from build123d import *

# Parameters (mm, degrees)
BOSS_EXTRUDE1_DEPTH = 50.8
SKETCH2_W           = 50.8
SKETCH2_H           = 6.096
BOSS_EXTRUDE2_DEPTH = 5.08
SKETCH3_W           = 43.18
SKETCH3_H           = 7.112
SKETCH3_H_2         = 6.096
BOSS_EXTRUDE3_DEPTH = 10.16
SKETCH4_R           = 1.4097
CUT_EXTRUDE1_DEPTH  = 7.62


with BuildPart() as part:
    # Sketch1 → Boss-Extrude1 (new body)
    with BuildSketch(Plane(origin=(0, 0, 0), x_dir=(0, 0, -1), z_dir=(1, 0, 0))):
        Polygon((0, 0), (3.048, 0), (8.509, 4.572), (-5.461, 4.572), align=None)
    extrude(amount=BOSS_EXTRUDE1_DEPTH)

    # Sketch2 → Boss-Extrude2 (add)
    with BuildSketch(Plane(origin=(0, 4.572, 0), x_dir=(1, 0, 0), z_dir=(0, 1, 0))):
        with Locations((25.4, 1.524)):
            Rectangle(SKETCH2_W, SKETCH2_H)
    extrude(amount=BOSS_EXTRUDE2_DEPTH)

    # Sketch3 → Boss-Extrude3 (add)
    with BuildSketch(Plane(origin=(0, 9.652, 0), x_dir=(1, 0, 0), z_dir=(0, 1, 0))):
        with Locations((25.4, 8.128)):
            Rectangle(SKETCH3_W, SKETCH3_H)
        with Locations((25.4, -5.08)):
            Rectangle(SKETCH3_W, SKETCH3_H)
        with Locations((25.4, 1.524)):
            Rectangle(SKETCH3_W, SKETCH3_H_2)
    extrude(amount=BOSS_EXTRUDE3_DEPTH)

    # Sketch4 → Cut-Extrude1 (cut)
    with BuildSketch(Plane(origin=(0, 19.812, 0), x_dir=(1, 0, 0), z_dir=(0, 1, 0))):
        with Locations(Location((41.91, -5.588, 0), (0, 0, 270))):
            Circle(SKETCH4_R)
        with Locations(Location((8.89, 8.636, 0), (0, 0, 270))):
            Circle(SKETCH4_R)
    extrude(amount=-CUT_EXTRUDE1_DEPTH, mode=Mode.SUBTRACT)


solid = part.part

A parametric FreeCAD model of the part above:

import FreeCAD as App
import Part
import Sketcher

V = App.Vector
Q = App.Units.Quantity


def add_polygon(sketch, points):
    """Adds a closed chain of lines whose ends are joined by coincident constraints."""
    first, n = sketch.GeometryCount, len(points)
    for a, b in zip(points, points[1:] + points[:1]):
        sketch.addGeometry(Part.LineSegment(App.Vector(*a, 0), App.Vector(*b, 0)), False)
    for i in range(n):
        sketch.addConstraint(Sketcher.Constraint("Coincident", first + i, 2, first + (i + 1) % n, 1))

doc = App.newDocument("Part")
body = doc.addObject("PartDesign::Body", "Body")

# Sketch on YZ plane
sketch1 = doc.addObject("Sketcher::SketchObject", "Sketch")
body.addObject(sketch1)
sketch1.AttachmentSupport = (doc.YZ_Plane, [""])
sketch1.MapMode = "FlatFace"
add_polygon(sketch1, [(0, 0), (0, -3.048), (4.572, -8.509), (4.572, 5.461)])  # lines 0-3
sketch1.addConstraint(Sketcher.Constraint("Vertical", 0))
sketch1.addConstraint(Sketcher.Constraint("Vertical", 2))
sketch1.addConstraint(Sketcher.Constraint("Coincident", 3, 2, -1, 1))
sketch1.addConstraint(Sketcher.Constraint("Equal", 1, 3))
sketch1.addConstraint(Sketcher.Constraint("DistanceY", 0, 2, 0, 1, Q("0.12 in")))
sketch1.addConstraint(Sketcher.Constraint("DistanceY", 2, 1, 2, 2, Q("0.55 in")))
sketch1.addConstraint(Sketcher.Constraint("DistanceX", -1, 1, 1, 2, Q("0.18 in")))
pad1 = doc.addObject("PartDesign::Pad", "Pad")
body.addObject(pad1)
pad1.Profile = sketch1
pad1.Length = Q("2 in")

# Sketch on XZ plane
sketch2 = doc.addObject("Sketcher::SketchObject", "Sketch001")
body.addObject(sketch2)
sketch2.AttachmentSupport = (doc.XZ_Plane, [""])
sketch2.MapMode = "FlatFace"
sketch2.AttachmentOffset = App.Placement(V(0, 0, -0.18 * 25.4), App.Rotation())
add_polygon(sketch2, [(0, -4.572), (0, 1.524), (50.8, 1.524), (50.8, -4.572)])  # lines 0-3
sketch2.addConstraint(Sketcher.Constraint("Vertical", 0))
sketch2.addConstraint(Sketcher.Constraint("Horizontal", 1))
sketch2.addConstraint(Sketcher.Constraint("Vertical", 2))
sketch2.addConstraint(Sketcher.Constraint("Horizontal", 3))
sketch2.addConstraint(Sketcher.Constraint("PointOnObject", 0, 2, -2))
sketch2.addConstraint(Sketcher.Constraint("DistanceX", 1, 1, 1, 2, Q("2 in")))
sketch2.addConstraint(Sketcher.Constraint("DistanceY", 0, 1, 0, 2, Q("0.24 in")))
sketch2.addConstraint(Sketcher.Constraint("DistanceY", -1, 1, 0, 2, Q("0.06 in")))
pad2 = doc.addObject("PartDesign::Pad", "Pad001")
body.addObject(pad2)
pad2.Profile = sketch2
pad2.Length = Q("0.2 in")
pad2.Reversed = True

# Sketch on XZ plane
sketch3 = doc.addObject("Sketcher::SketchObject", "Sketch002")
body.addObject(sketch3)
sketch3.AttachmentSupport = (doc.XZ_Plane, [""])
sketch3.MapMode = "FlatFace"
sketch3.AttachmentOffset = App.Placement(V(0, 0, -0.38 * 25.4), App.Rotation())
add_polygon(sketch3, [(3.81, -11.684), (3.81, 8.636), (46.99, 8.636), (46.99, -11.684)])  # lines 0-3
sketch3.addConstraint(Sketcher.Constraint("Vertical", 0))
sketch3.addConstraint(Sketcher.Constraint("Horizontal", 1))
sketch3.addConstraint(Sketcher.Constraint("Vertical", 2))
sketch3.addConstraint(Sketcher.Constraint("Horizontal", 3))
sketch3.addConstraint(Sketcher.Constraint("DistanceX", 1, 1, 1, 2, Q("1.7 in")))
sketch3.addConstraint(Sketcher.Constraint("DistanceY", 0, 1, 0, 2, Q("0.8 in")))
sketch3.addConstraint(Sketcher.Constraint("DistanceX", -1, 1, 0, 2, Q("0.15 in")))
sketch3.addConstraint(Sketcher.Constraint("DistanceY", -1, 1, 0, 2, Q("0.34 in")))
pad3 = doc.addObject("PartDesign::Pad", "Pad002")
body.addObject(pad3)
pad3.Profile = sketch3
pad3.Length = Q("0.4 in")
pad3.Reversed = True

# Sketch on XZ plane
sketch4 = doc.addObject("Sketcher::SketchObject", "Sketch003")
body.addObject(sketch4)
sketch4.AttachmentSupport = (doc.XZ_Plane, [""])
sketch4.MapMode = "FlatFace"
sketch4.AttachmentOffset = App.Placement(V(0, 0, -0.78 * 25.4), App.Rotation())
sketch4.addGeometry(Part.Circle(V(41.91, 5.588, 0), V(0, 0, 1), 1.4097), False)
sketch4.addGeometry(Part.Circle(V(8.89, -8.636, 0), V(0, 0, 1), 1.4097), False)
sketch4.addConstraint(Sketcher.Constraint("Equal", 0, 1))
sketch4.addConstraint(Sketcher.Constraint("Diameter", 0, Q("0.111 in")))
sketch4.addConstraint(Sketcher.Constraint("DistanceX", 1, 3, 0, 3, Q("1.3 in")))
sketch4.addConstraint(Sketcher.Constraint("DistanceX", -1, 1, 0, 3, Q("1.65 in")))
sketch4.addConstraint(Sketcher.Constraint("DistanceY", -1, 1, 0, 3, Q("0.22 in")))
sketch4.addConstraint(Sketcher.Constraint("DistanceY", 1, 3, -1, 1, Q("0.34 in")))
pocket1 = doc.addObject("PartDesign::Pocket", "Pocket")
body.addObject(pocket1)
pocket1.Profile = sketch4
pocket1.Length = Q("0.3 in")
pocket1.Reversed = True

doc.recompute()
